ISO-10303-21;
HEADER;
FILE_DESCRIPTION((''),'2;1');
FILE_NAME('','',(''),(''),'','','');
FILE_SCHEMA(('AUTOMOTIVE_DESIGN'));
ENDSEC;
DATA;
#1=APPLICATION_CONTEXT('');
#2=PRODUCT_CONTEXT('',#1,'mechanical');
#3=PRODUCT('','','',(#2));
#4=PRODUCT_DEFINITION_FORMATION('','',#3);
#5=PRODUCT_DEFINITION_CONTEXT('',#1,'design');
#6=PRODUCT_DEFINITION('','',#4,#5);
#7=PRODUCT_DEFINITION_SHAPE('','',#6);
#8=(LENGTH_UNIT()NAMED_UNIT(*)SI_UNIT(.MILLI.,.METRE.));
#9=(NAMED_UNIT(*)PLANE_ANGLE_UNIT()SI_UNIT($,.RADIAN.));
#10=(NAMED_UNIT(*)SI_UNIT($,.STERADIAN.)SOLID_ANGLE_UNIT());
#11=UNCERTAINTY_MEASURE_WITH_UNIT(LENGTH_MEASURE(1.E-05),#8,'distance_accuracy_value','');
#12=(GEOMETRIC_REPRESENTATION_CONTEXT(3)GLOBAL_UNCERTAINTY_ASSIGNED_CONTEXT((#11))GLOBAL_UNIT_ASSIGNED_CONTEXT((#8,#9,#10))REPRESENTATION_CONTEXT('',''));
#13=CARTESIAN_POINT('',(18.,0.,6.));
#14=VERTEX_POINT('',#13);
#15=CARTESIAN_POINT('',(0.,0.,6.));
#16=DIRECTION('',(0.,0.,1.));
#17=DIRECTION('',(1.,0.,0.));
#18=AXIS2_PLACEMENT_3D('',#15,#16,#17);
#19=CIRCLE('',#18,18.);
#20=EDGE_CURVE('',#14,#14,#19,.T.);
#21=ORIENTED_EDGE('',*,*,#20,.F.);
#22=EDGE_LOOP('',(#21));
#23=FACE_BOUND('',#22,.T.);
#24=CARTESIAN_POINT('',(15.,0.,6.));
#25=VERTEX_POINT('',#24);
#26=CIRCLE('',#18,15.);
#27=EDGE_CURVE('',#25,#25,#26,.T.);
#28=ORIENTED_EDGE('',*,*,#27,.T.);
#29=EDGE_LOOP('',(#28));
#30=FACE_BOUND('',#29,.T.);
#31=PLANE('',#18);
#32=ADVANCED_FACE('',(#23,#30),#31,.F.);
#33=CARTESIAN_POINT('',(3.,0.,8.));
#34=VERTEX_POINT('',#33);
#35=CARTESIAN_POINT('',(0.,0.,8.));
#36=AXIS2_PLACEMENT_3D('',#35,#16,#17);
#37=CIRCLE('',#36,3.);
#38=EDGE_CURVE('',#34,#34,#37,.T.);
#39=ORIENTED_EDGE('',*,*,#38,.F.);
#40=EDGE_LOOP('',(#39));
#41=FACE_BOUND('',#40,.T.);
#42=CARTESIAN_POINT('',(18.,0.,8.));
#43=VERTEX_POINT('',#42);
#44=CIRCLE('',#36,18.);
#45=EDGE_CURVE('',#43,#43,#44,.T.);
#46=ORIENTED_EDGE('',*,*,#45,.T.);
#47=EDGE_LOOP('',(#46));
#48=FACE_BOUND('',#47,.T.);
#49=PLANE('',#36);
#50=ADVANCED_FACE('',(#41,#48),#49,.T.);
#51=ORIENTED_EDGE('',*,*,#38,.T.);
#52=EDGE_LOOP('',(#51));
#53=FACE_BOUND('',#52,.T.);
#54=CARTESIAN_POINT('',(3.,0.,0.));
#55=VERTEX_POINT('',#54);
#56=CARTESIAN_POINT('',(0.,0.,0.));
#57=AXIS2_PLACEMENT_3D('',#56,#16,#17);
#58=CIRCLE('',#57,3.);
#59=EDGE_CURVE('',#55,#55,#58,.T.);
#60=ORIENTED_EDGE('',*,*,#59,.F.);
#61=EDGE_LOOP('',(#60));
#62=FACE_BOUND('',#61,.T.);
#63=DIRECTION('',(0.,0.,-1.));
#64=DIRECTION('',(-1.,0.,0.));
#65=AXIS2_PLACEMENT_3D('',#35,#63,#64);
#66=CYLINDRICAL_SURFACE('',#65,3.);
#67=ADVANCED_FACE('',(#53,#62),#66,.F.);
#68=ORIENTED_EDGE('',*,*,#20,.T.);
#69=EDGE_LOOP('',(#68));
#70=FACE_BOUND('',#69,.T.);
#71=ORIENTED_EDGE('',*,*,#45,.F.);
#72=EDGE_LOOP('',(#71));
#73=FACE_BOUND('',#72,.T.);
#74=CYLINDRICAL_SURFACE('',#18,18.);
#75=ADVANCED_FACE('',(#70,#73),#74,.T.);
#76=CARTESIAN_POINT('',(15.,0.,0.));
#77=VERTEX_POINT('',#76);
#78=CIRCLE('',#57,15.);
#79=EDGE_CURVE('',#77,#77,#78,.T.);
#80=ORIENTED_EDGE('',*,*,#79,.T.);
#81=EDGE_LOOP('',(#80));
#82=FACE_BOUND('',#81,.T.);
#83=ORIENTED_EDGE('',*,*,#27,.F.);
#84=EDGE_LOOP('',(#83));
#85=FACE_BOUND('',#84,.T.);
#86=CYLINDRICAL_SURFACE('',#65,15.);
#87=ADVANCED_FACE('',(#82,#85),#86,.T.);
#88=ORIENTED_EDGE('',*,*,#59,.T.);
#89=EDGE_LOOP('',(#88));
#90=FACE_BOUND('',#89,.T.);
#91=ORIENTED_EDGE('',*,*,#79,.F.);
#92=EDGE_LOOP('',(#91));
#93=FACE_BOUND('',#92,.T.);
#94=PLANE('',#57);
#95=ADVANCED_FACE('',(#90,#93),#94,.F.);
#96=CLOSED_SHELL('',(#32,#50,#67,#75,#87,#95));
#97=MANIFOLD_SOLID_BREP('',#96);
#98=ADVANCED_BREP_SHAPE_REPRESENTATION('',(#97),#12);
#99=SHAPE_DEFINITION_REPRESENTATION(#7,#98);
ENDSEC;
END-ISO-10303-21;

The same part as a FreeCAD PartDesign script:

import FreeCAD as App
import Part
import Sketcher

V = App.Vector
Q = App.Units.Quantity

doc = App.newDocument("Part")
body = doc.addObject("PartDesign::Body", "Body")

# Sketch on XY plane
sketch1 = body.newObject("Sketcher::SketchObject", "Sketch")
sketch1.AttachmentSupport = (doc.getObject("XY_Plane"), [""])
sketch1.MapMode = "FlatFace"
sketch1.addGeometry([
    Part.Circle(V(0, 0, 0), V(0, 0, 1), 15),
    Part.Circle(V(0, 0, 0), V(0, 0, 1), 3),
], False)
sketch1.addConstraint([
    Sketcher.Constraint("Coincident", 0, 3, -1, 1),
    Sketcher.Constraint("Coincident", 1, 3, -1, 1),
    Sketcher.Constraint("Diameter", 0, Q("30 mm")),
    Sketcher.Constraint("Diameter", 1, Q("6 mm")),
])
pad1 = body.newObject("PartDesign::Pad", "Pad")
pad1.Profile = sketch1
pad1.Length = 8

# Sketch on XY plane
sketch2 = body.newObject("Sketcher::SketchObject", "Sketch001")
sketch2.AttachmentSupport = (doc.getObject("XY_Plane"), [""])
sketch2.MapMode = "FlatFace"
sketch2.AttachmentOffset = App.Placement(V(0, 0, 6), App.Rotation())
sketch2.addGeometry([
    Part.Circle(V(0, 0, 0), V(0, 0, 1), 18),
    Part.Circle(V(0, 0, 0), V(0, 0, 1), 3),
], False)
sketch2.addConstraint([
    Sketcher.Constraint("Coincident", 0, 3, -1, 1),
    Sketcher.Constraint("Coincident", 1, 3, -1, 1),
    Sketcher.Constraint("Diameter", 0, Q("36 mm")),
    Sketcher.Constraint("Diameter", 1, Q("6 mm")),
])
pad2 = body.newObject("PartDesign::Pad", "Pad001")
pad2.Profile = sketch2
pad2.Length = 2

doc.recompute()
